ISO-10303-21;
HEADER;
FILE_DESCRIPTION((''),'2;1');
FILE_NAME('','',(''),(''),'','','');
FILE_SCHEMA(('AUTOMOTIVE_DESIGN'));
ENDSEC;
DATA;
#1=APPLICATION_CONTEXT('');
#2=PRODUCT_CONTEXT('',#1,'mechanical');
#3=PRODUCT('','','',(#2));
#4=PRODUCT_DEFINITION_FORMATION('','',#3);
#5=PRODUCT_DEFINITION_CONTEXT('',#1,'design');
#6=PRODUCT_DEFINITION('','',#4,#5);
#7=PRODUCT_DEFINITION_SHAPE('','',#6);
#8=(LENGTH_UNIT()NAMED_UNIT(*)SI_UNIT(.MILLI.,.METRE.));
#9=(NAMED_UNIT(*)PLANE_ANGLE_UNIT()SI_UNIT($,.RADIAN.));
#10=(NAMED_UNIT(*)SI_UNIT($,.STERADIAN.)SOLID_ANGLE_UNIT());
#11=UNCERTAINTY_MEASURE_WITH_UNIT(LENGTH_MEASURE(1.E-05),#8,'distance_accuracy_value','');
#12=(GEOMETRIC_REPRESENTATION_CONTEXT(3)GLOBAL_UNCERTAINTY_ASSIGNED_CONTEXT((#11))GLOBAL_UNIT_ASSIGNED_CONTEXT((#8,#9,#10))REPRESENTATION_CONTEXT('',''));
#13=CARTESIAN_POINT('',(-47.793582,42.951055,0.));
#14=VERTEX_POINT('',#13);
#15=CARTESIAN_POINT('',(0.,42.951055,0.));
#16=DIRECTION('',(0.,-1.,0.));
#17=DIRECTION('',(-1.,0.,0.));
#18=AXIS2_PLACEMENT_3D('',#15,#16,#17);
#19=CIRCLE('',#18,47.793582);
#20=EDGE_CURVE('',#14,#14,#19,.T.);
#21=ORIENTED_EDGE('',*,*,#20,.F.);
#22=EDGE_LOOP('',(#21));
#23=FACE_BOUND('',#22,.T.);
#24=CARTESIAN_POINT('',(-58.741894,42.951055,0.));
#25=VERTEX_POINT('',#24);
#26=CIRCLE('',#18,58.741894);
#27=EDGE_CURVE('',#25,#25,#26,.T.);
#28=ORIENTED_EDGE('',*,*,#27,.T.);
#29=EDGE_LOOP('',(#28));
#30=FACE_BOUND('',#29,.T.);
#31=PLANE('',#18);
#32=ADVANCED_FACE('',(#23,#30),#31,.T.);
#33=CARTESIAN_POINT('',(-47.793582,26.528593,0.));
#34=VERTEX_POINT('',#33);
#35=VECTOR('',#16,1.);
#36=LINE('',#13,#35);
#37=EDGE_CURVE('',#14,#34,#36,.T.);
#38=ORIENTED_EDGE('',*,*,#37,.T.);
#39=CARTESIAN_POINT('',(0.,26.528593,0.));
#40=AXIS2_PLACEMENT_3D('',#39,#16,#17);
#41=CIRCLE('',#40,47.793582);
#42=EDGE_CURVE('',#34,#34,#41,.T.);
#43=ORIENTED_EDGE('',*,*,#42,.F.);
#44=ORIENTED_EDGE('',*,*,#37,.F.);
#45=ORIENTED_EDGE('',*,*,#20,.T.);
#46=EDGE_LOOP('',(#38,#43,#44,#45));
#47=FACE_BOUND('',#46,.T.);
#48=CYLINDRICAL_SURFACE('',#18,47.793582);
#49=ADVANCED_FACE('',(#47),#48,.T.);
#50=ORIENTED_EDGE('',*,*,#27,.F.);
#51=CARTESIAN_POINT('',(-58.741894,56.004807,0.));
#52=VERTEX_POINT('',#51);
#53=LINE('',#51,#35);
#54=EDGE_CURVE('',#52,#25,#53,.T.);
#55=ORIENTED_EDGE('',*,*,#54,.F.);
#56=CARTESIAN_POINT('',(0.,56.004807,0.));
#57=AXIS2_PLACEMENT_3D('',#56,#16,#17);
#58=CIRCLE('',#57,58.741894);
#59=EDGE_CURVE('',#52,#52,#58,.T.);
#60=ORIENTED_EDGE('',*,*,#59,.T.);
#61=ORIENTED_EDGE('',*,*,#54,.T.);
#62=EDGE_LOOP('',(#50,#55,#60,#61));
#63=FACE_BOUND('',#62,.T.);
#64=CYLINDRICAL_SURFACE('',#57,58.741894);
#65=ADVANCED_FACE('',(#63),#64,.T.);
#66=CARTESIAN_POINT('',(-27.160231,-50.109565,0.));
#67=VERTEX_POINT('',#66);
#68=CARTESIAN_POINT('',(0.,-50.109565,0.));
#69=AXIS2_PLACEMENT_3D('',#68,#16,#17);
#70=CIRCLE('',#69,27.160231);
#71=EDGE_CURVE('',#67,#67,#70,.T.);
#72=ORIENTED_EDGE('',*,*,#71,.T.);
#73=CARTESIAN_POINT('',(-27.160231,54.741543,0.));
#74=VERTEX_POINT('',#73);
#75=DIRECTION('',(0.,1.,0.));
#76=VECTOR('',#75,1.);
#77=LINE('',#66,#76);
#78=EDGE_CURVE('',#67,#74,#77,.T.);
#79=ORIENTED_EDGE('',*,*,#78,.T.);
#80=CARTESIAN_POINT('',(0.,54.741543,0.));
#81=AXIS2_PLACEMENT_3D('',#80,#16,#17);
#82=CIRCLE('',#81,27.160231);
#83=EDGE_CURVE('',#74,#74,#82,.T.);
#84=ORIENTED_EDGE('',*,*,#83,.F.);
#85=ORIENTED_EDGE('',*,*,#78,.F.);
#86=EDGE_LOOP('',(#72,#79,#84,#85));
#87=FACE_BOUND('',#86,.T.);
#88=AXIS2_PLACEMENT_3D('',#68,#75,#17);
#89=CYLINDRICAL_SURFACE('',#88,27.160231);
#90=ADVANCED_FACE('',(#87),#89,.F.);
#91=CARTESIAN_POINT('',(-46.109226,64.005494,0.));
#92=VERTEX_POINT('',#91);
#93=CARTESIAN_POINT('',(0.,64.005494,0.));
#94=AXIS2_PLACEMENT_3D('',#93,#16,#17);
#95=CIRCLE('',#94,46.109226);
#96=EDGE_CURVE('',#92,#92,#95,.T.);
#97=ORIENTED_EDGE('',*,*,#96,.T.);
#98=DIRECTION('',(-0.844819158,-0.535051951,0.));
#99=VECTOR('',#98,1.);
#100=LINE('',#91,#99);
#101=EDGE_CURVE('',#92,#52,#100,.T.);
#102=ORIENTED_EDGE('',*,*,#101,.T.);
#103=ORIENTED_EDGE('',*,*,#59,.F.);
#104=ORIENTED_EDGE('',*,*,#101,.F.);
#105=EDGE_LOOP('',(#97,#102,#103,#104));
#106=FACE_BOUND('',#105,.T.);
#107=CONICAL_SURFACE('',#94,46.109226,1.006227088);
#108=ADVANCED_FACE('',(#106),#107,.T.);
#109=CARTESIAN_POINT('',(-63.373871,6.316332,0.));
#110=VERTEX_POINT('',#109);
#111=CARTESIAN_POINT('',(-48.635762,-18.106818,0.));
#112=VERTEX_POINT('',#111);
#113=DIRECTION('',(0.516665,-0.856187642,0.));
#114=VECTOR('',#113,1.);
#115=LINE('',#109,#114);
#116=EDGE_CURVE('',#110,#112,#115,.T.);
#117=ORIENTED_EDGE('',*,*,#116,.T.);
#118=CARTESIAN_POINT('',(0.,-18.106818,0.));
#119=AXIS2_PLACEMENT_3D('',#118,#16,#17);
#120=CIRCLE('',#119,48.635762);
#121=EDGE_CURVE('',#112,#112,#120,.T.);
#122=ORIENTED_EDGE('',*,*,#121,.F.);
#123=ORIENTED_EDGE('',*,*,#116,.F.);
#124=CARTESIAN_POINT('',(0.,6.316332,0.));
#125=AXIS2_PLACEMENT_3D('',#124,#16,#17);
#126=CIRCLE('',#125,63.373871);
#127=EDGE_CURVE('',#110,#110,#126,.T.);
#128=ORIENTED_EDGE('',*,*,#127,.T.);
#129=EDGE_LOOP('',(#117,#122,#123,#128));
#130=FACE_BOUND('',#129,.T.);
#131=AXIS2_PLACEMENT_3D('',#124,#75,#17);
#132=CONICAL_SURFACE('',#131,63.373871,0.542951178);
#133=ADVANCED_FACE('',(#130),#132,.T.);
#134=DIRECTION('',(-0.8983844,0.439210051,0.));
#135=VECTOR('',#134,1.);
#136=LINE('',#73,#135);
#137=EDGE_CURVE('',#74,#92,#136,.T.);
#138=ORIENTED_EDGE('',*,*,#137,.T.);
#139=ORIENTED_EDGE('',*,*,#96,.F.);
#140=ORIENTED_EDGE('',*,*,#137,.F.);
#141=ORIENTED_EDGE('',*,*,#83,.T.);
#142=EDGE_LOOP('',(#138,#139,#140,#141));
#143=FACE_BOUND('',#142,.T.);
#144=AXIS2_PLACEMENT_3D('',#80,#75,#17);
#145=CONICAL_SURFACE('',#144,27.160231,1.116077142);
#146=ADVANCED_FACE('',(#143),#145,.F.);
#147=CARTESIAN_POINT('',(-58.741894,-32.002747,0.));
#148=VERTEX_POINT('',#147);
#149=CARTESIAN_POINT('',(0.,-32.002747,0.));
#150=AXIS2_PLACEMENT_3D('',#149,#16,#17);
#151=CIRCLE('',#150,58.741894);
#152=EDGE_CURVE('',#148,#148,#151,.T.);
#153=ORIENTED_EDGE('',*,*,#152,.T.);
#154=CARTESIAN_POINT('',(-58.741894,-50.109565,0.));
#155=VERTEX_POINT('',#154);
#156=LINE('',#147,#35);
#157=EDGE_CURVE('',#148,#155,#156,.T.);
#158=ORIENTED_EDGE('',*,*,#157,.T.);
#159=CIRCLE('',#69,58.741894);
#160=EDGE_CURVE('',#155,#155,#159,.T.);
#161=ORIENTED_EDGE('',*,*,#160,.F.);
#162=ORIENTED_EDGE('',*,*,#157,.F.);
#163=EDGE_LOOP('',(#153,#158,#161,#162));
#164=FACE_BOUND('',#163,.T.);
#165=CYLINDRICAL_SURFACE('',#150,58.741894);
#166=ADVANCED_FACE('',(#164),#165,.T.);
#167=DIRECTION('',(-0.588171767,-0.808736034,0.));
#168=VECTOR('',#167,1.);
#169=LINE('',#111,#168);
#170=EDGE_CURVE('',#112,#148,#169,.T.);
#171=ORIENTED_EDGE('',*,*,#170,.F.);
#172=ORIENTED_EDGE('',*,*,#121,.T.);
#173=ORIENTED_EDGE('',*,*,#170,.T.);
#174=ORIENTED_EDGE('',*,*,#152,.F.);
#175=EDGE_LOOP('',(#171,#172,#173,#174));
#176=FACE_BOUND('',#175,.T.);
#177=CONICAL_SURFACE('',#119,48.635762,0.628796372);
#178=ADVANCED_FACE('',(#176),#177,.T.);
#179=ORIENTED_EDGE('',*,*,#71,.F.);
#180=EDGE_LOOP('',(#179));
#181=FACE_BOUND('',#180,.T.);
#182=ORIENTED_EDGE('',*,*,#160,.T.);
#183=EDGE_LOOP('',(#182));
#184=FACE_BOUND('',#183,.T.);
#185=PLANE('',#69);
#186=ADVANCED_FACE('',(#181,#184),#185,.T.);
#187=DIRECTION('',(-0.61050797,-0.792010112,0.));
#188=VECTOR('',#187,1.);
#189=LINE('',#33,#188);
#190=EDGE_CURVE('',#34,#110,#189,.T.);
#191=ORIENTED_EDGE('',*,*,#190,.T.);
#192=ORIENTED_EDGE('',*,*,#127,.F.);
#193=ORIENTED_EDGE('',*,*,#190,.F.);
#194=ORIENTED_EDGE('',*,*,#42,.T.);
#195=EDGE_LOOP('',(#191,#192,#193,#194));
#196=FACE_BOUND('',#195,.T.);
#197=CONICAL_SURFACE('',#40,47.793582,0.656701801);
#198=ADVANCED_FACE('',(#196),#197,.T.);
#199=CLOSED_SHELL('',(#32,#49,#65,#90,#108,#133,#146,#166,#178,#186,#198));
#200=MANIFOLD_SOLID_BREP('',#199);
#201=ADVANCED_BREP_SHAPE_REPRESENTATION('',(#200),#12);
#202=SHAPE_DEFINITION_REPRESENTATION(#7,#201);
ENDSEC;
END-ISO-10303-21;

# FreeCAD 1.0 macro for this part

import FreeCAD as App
import Part
import Sketcher
Q = App.Units.Quantity

doc = App.newDocument("Part")
params = doc.addObject("Spreadsheet::Sheet", "Params")
for row, (alias, value) in enumerate([
    ("revolution_angle", "360 deg"),
], start=1):
    params.set(f"A{row}", alias)
    params.set(f"B{row}", "=" + value)
    params.setAlias(f"B{row}", alias)

body = doc.addObject("PartDesign::Body", "Body")

# Sketch on XY plane
sketch1 = body.newObject("Sketcher::SketchObject", "Sketch")
sketch1.AttachmentSupport = (doc.getObject("XY_Plane"), [""])
sketch1.MapMode = "FlatFace"
sketch1.addGeometry(Part.LineSegment(App.Vector(-27.160231, -50.109565, 0), App.Vector(-27.160231, 54.741543, 0)), False)
sketch1.addGeometry(Part.LineSegment(App.Vector(-27.160231, 54.741543, 0), App.Vector(-46.109226, 64.005494, 0)), False)
sketch1.addGeometry(Part.LineSegment(App.Vector(-46.109226, 64.005494, 0), App.Vector(-58.741894, 56.004807, 0)), False)
sketch1.addGeometry(Part.LineSegment(App.Vector(-58.741894, 56.004807, 0), App.Vector(-58.741894, 42.951055, 0)), False)
sketch1.addGeometry(Part.LineSegment(App.Vector(-58.741894, 42.951055, 0), App.Vector(-47.793582, 42.951055, 0)), False)
sketch1.addGeometry(Part.LineSegment(App.Vector(-47.793582, 42.951055, 0), App.Vector(-47.793582, 26.528593, 0)), False)
sketch1.addGeometry(Part.LineSegment(App.Vector(-47.793582, 26.528593, 0), App.Vector(-63.373871, 6.316332, 0)), False)
sketch1.addGeometry(Part.LineSegment(App.Vector(-63.373871, 6.316332, 0), App.Vector(-48.635762, -18.106818, 0)), False)
sketch1.addGeometry(Part.LineSegment(App.Vector(-48.635762, -18.106818, 0), App.Vector(-58.741894, -32.002747, 0)), False)
sketch1.addGeometry(Part.LineSegment(App.Vector(-58.741894, -32.002747, 0), App.Vector(-58.741894, -50.109565, 0)), False)
sketch1.addGeometry(Part.LineSegment(App.Vector(-58.741894, -50.109565, 0), App.Vector(-27.160231, -50.109565, 0)), False)
sketch1.addConstraint(Sketcher.Constraint("Coincident", 0, 2, 1, 1))
sketch1.addConstraint(Sketcher.Constraint("Coincident", 1, 2, 2, 1))
sketch1.addConstraint(Sketcher.Constraint("Coincident", 2, 2, 3, 1))
sketch1.addConstraint(Sketcher.Constraint("Coincident", 3, 2, 4, 1))
sketch1.addConstraint(Sketcher.Constraint("Coincident", 4, 2, 5, 1))
sketch1.addConstraint(Sketcher.Constraint("Coincident", 5, 2, 6, 1))
sketch1.addConstraint(Sketcher.Constraint("Coincident", 6, 2, 7, 1))
sketch1.addConstraint(Sketcher.Constraint("Coincident", 7, 2, 8, 1))
sketch1.addConstraint(Sketcher.Constraint("Coincident", 8, 2, 9, 1))
sketch1.addConstraint(Sketcher.Constraint("Coincident", 9, 2, 10, 1))
sketch1.addConstraint(Sketcher.Constraint("Coincident", 10, 2, 0, 1))
sketch1.addConstraint(Sketcher.Constraint("Vertical", 0))
sketch1.addConstraint(Sketcher.Constraint("Vertical", 3))
sketch1.addConstraint(Sketcher.Constraint("Horizontal", 4))
sketch1.addConstraint(Sketcher.Constraint("Vertical", 5))
sketch1.addConstraint(Sketcher.Constraint("Vertical", 9))
sketch1.addConstraint(Sketcher.Constraint("Horizontal", 10))
sketch1.addConstraint(Sketcher.Constraint("Vertical", 3, 2, 8, 2))
sketch1.addConstraint(Sketcher.Constraint("Distance", 1, Q("21.092302 mm")))
sketch1.addConstraint(Sketcher.Constraint("DistanceY", 0, 1, 0, 2, Q("104.851108 mm")))
sketch1.addConstraint(Sketcher.Constraint("DistanceY", 5, 2, 5, 1, Q("16.422462 mm")))
sketch1.addConstraint(Sketcher.Constraint("DistanceY", 9, 2, 9, 1, Q("18.106818 mm")))
sketch1.addConstraint(Sketcher.Constraint("DistanceY", 5, 2, 1, 2, Q("37.476901 mm")))
sketch1.addConstraint(Sketcher.Constraint("DistanceY", 8, 2, 3, 2, Q("74.953802 mm")))
sketch1.addConstraint(Sketcher.Constraint("Distance", 8, Q("17.18228 mm")))
sketch1.addConstraint(Sketcher.Constraint("DistanceX", 4, 1, 4, 2, Q("10.948312 mm")))
sketch1.addConstraint(Sketcher.Constraint("DistanceX", 10, 1, 10, 2, Q("31.581663 mm")))
sketch1.addConstraint(Sketcher.Constraint("DistanceY", 3, 2, 3, 1, Q("13.053752 mm")))
sketch1.addConstraint(Sketcher.Constraint("DistanceX", 0, 2, -1, 1, Q("27.160231 mm")))
sketch1.addConstraint(Sketcher.Constraint("DistanceX", 6, 2, -1, 1, Q("63.373871 mm")))
sketch1.addConstraint(Sketcher.Constraint("DistanceY", 7, 2, -1, 1, Q("18.106818 mm")))
sketch1.addConstraint(Sketcher.Constraint("DistanceY", 6, 2, 5, 2, Q("20.212261 mm")))
sketch1.addConstraint(Sketcher.Constraint("DistanceX", 6, 2, 7, 2, Q("14.738109 mm")))
revolution = body.newObject("PartDesign::Revolution", "Revolution")
revolution.Profile = sketch1
revolution.ReferenceAxis = (sketch1, ["V_Axis"])
revolution.setExpression("Angle", "Params.revolution_angle")

doc.recompute()
